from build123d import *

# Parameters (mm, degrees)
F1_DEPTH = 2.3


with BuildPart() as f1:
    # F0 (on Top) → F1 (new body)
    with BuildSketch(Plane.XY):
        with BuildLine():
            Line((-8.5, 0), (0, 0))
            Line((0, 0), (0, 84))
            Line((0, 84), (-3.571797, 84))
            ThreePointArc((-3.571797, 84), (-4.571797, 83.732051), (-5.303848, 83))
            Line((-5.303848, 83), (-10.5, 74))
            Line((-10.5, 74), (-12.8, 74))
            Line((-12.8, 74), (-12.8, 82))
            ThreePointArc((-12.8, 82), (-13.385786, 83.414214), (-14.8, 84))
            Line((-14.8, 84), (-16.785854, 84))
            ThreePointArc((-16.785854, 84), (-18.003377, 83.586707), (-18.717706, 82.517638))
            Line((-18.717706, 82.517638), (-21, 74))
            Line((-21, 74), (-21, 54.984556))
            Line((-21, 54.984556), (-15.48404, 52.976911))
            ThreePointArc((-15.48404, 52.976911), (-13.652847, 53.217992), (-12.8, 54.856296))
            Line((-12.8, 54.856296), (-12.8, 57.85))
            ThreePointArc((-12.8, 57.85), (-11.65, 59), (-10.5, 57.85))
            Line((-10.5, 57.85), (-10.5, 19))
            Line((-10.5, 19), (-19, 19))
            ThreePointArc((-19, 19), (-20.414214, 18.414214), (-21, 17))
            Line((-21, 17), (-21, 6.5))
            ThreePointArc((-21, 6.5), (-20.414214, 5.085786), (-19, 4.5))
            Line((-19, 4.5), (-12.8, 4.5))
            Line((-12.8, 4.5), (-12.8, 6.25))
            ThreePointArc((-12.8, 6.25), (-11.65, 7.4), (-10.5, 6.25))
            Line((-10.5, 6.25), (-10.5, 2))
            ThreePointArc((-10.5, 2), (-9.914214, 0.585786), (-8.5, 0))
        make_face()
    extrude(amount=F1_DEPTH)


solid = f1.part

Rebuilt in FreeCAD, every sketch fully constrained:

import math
import FreeCAD as App
import Part
import Sketcher

V = App.Vector
Q = App.Units.Quantity

doc = App.newDocument("Part")
body = doc.addObject("PartDesign::Body", "Body")

sketch1 = body.newObject("Sketcher::SketchObject", "Sketch")
sketch1.AttachmentSupport = (doc.getObject("XY_Plane"), [""])
sketch1.MapMode = "FlatFace"
sketch1.addGeometry([
    Part.LineSegment(V(-8.5, 0, 0), V(0, 0, 0)),
    Part.LineSegment(V(0, 0, 0), V(0, 84, 0)),
    Part.LineSegment(V(0, 84, 0), V(-3.6, 84, 0)),
    Part.ArcOfCircle(Part.Circle(V(-3.6, 82, 0), V(0, 0, 1), 2), math.radians(90), math.radians(150)),
    Part.LineSegment(V(-5.3, 83, 0), V(-10.5, 74, 0)),
    Part.LineSegment(V(-10.5, 74, 0), V(-12.8, 74, 0)),
    Part.LineSegment(V(-12.8, 74, 0), V(-12.8, 82, 0)),
    Part.ArcOfCircle(Part.Circle(V(-14.8, 82, 0), V(0, 0, 1), 2), math.radians(0), math.radians(90)),
    Part.LineSegment(V(-14.8, 84, 0), V(-16.8, 84, 0)),
    Part.ArcOfCircle(Part.Circle(V(-16.8, 82, 0), V(0, 0, 1), 2), math.radians(90), math.radians(165)),
    Part.LineSegment(V(-18.7, 82.5, 0), V(-21, 74, 0)),
    Part.LineSegment(V(-21, 74, 0), V(-21, 55, 0)),
    Part.LineSegment(V(-21, 55, 0), V(-15.5, 53, 0)),
    Part.ArcOfCircle(Part.Circle(V(-14.8, 54.9, 0), V(0, 0, 1), 2), math.radians(-110), math.radians(0)),
    Part.LineSegment(V(-12.8, 54.9, 0), V(-12.8, 57.9, 0)),
    Part.ArcOfCircle(Part.Circle(V(-11.7, 57.9, 0), V(0, 0, 1), 1.1), math.radians(0), math.radians(180)),
    Part.LineSegment(V(-10.5, 57.9, 0), V(-10.5, 19, 0)),
    Part.LineSegment(V(-10.5, 19, 0), V(-19, 19, 0)),
    Part.ArcOfCircle(Part.Circle(V(-19, 17, 0), V(0, 0, 1), 2), math.radians(90), math.radians(180)),
    Part.LineSegment(V(-21, 17, 0), V(-21, 6.5, 0)),
    Part.ArcOfCircle(Part.Circle(V(-19, 6.5, 0), V(0, 0, 1), 2), math.radians(180), math.radians(270)),
    Part.LineSegment(V(-19, 4.5, 0), V(-12.8, 4.5, 0)),
    Part.LineSegment(V(-12.8, 4.5, 0), V(-12.8, 6.2, 0)),
    Part.ArcOfCircle(Part.Circle(V(-11.7, 6.2, 0), V(0, 0, 1), 1.1), math.radians(0), math.radians(180)),
    Part.LineSegment(V(-10.5, 6.2, 0), V(-10.5, 2, 0)),
    Part.ArcOfCircle(Part.Circle(V(-8.5, 2, 0), V(0, 0, 1), 2), math.radians(180), math.radians(270)),
], False)
sketch1.addConstraint([
    Sketcher.Constraint("Coincident", 0, 2, 1, 1),
    Sketcher.Constraint("Coincident", 1, 2, 2, 1),
    Sketcher.Constraint("Tangent", 2, 2, 3, 1),
    Sketcher.Constraint("Tangent", 3, 2, 4, 1),
    Sketcher.Constraint("Coincident", 4, 2, 5, 1),
    Sketcher.Constraint("Coincident", 5, 2, 6, 1),
    Sketcher.Constraint("Tangent", 6, 2, 7, 1),
    Sketcher.Constraint("Tangent", 7, 2, 8, 1),
    Sketcher.Constraint("Tangent", 8, 2, 9, 1),
    Sketcher.Constraint("Tangent", 9, 2, 10, 1),
    Sketcher.Constraint("Coincident", 10, 2, 11, 1),
    Sketcher.Constraint("Coincident", 11, 2, 12, 1),
    Sketcher.Constraint("Tangent", 12, 2, 13, 1),
    Sketcher.Constraint("Tangent", 13, 2, 14, 1),
    Sketcher.Constraint("Tangent", 14, 2, 15, 2),
    Sketcher.Constraint("Tangent", 15, 1, 16, 1),
    Sketcher.Constraint("Coincident", 16, 2, 17, 1),
    Sketcher.Constraint("Tangent", 17, 2, 18, 1),
    Sketcher.Constraint("Tangent", 18, 2, 19, 1),
    Sketcher.Constraint("Tangent", 19, 2, 20, 1),
    Sketcher.Constraint("Tangent", 20, 2, 21, 1),
    Sketcher.Constraint("Coincident", 21, 2, 22, 1),
    Sketcher.Constraint("Tangent", 22, 2, 23, 2),
    Sketcher.Constraint("Tangent", 23, 1, 24, 1),
    Sketcher.Constraint("Tangent", 24, 2, 25, 1),
    Sketcher.Constraint("Tangent", 25, 2, 0, 1),
    Sketcher.Constraint("Horizontal", 0),
    Sketcher.Constraint("Vertical", 1),
    Sketcher.Constraint("Horizontal", 2),
    Sketcher.Constraint("Horizontal", 5),
    Sketcher.Constraint("Vertical", 6),
    Sketcher.Constraint("Horizontal", 8),
    Sketcher.Constraint("Vertical", 11),
    Sketcher.Constraint("Vertical", 14),
    Sketcher.Constraint("Vertical", 16),
    Sketcher.Constraint("Horizontal", 17),
    Sketcher.Constraint("Vertical", 19),
    Sketcher.Constraint("Horizontal", 21),
    Sketcher.Constraint("Vertical", 22),
    Sketcher.Constraint("Vertical", 24),
    Sketcher.Constraint("Coincident", 0, 2, -1, 1),
    Sketcher.Constraint("Equal", 3, 7),
    Sketcher.Constraint("Equal", 7, 9),
    Sketcher.Constraint("Equal", 9, 13),
    Sketcher.Constraint("Equal", 13, 18),
    Sketcher.Constraint("Equal", 18, 20),
    Sketcher.Constraint("Equal", 15, 23),
    Sketcher.Constraint("Equal", 20, 25),
    Sketcher.Constraint("Horizontal", 3, 3, 7, 3),
    Sketcher.Constraint("Horizontal", 5, 2, 10, 2),
    Sketcher.Constraint("Vertical", 7, 3, 13, 3),
    Sketcher.Constraint("Vertical", 15, 3, 23, 3),
    Sketcher.Constraint("Vertical", 4, 2, 15, 1),
    Sketcher.Constraint("Vertical", 11, 2, 18, 2),
    Sketcher.Constraint("Equal", 0, 17),
    Sketcher.Constraint("Radius", 3, Q("2 mm")),
    Sketcher.Constraint("DistanceY", 1, 1, 1, 2, Q("84 mm")),
    Sketcher.Constraint("DistanceY", 6, 1, 6, 2, Q("8 mm")),
    Sketcher.Constraint("Angle", 4, Q("-119.999998 deg")),
    Sketcher.Constraint("Angle", 10, Q("-104.999999 deg")),
    Sketcher.Constraint("Angle", 12, Q("-19.999998 deg")),
    Sketcher.Constraint("Radius", 15, Q("1.15 mm")),
    Sketcher.Constraint("DistanceX", 0, 1, 0, 2, Q("8.5 mm")),
    Sketcher.Constraint("DistanceY", 19, 2, 19, 1, Q("10.5 mm")),
    Sketcher.Constraint("DistanceY", -1, 1, 18, 3, Q("17.000001 mm")),
    Sketcher.Constraint("DistanceY", 16, 2, 16, 1, Q("38.85 mm")),
    Sketcher.Constraint("DistanceY", 22, 1, 22, 2, Q("1.75 mm")),
    Sketcher.Constraint("DistanceY", 11, 2, 11, 1, Q("19.015444 mm")),
])
pad1 = body.newObject("PartDesign::Pad", "Pad")
pad1.Profile = sketch1
pad1.Length = 2.3

doc.recompute()
